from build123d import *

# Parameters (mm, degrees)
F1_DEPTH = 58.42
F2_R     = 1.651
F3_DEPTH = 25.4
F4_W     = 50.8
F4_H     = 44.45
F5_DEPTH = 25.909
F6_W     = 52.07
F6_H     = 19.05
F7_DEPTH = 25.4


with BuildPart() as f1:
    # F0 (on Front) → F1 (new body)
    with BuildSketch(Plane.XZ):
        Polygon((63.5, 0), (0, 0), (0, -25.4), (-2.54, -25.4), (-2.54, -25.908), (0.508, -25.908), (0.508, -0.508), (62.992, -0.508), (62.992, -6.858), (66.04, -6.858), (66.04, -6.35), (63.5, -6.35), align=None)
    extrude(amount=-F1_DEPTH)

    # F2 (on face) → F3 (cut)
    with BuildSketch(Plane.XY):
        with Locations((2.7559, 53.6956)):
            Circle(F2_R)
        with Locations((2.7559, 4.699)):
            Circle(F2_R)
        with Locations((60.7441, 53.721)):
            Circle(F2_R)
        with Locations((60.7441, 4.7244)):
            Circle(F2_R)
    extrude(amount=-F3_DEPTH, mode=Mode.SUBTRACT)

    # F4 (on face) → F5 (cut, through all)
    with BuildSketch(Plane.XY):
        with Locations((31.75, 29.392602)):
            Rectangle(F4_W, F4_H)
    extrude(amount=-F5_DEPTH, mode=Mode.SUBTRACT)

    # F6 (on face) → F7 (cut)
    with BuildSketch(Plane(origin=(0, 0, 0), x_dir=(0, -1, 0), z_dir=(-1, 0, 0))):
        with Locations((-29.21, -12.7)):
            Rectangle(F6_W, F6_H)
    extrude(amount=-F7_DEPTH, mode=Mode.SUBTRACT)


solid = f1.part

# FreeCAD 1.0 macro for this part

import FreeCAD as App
import Part
import Sketcher
from FreeCAD import Vector
Q = App.Units.Quantity


def add_polygon(sketch, points):
    """Adds a closed chain of lines whose ends are joined by coincident constraints."""
    first, n = sketch.GeometryCount, len(points)
    for a, b in zip(points, points[1:] + points[:1]):
        sketch.addGeometry(Part.LineSegment(App.Vector(*a, 0), App.Vector(*b, 0)), False)
    for i in range(n):
        sketch.addConstraint(Sketcher.Constraint("Coincident", first + i, 2, first + (i + 1) % n, 1))

doc = App.newDocument("Part")
params = doc.addObject("Spreadsheet::Sheet", "Params")
for row, (alias, value) in enumerate([
    ("sketch1_height", "1 in"),
    ("sketch1_width", "2.5 in"),
    ("sketch1_width2", "0.1 in"),
    ("sketch1_width3", "0.12 in"),
    ("sketch1_height2", "0.02 in"),
    ("pad1_length", "2.3 in"),
    ("sketch2_diameter", "0.13 in"),
    ("pocket1_length", "1 in"),
    ("sketch3_width", "2 in"),
    ("sketch3_height", "1.75 in"),
    ("sketch4_width", "2.05 in"),
    ("sketch4_height", "0.75 in"),
    ("pocket3_length", "1 in"),
], start=1):
    params.set(f"A{row}", alias)
    params.set(f"B{row}", "=" + value)
    params.setAlias(f"B{row}", alias)

body = doc.addObject("PartDesign::Body", "Body")

sketch1 = body.newObject("Sketcher::SketchObject", "Sketch")
sketch1.AttachmentSupport = (doc.getObject("XZ_Plane"), [""])
sketch1.MapMode = "FlatFace"
add_polygon(sketch1, [(63.5, 0), (0, 0), (0, -25.4), (-2.5, -25.4), (-2.5, -25.9), (0.5, -25.9), (0.5, -0.5), (63, -0.5), (63, -6.9), (66, -6.9), (66, -6.3), (63.5, -6.3)])
sketch1.addConstraint(Sketcher.Constraint("Horizontal", 0))
sketch1.addConstraint(Sketcher.Constraint("Vertical", 1))
sketch1.addConstraint(Sketcher.Constraint("Horizontal", 2))
sketch1.addConstraint(Sketcher.Constraint("Vertical", 3))
sketch1.addConstraint(Sketcher.Constraint("Horizontal", 4))
sketch1.addConstraint(Sketcher.Constraint("Vertical", 5))
sketch1.addConstraint(Sketcher.Constraint("Horizontal", 6))
sketch1.addConstraint(Sketcher.Constraint("Vertical", 7))
sketch1.addConstraint(Sketcher.Constraint("Horizontal", 8))
sketch1.addConstraint(Sketcher.Constraint("Vertical", 9))
sketch1.addConstraint(Sketcher.Constraint("Horizontal", 10))
sketch1.addConstraint(Sketcher.Constraint("Vertical", 11))
sketch1.addConstraint(Sketcher.Constraint("Coincident", 0, 2, -1, 1))
sketch1.addConstraint(Sketcher.Constraint("Equal", 4, 8))
sketch1.addConstraint(Sketcher.Constraint("Equal", 2, 10))
sketch1.addConstraint(Sketcher.Constraint("Equal", 1, 5))
sketch1.addConstraint(Sketcher.Constraint("Equal", 3, 9))
sketch1.addConstraint(Sketcher.Constraint("DistanceY", 1, 2, 1, 1, Q("1 in")))
sketch1.addConstraint(Sketcher.Constraint("DistanceX", 0, 2, 0, 1, Q("2.5 in")))
sketch1.addConstraint(Sketcher.Constraint("DistanceX", 2, 2, 2, 1, Q("0.1 in")))
sketch1.addConstraint(Sketcher.Constraint("DistanceX", 4, 1, 4, 2, Q("0.12 in")))
sketch1.addConstraint(Sketcher.Constraint("DistanceY", 3, 2, 3, 1, Q("0.02 in")))
sketch1.addConstraint(Sketcher.Constraint("DistanceY", 7, 2, 7, 1, Q("0.25 in")))
sketch1.setExpression("Constraints[29]", "Params.sketch1_height")
sketch1.setExpression("Constraints[30]", "Params.sketch1_width")
sketch1.setExpression("Constraints[31]", "Params.sketch1_width2")
sketch1.setExpression("Constraints[32]", "Params.sketch1_width3")
sketch1.setExpression("Constraints[33]", "Params.sketch1_height2")
pad1 = body.newObject("PartDesign::Pad", "Pad")
pad1.Profile = sketch1
pad1.setExpression("Length", "Params.pad1_length")
pad1.Reversed = True

sketch2 = body.newObject("Sketcher::SketchObject", "Sketch001")
sketch2.AttachmentSupport = (doc.getObject("XY_Plane"), [""])
sketch2.MapMode = "FlatFace"
sketch2.addGeometry(Part.Circle(Vector(2.8, 53.7, 0), Vector(0, 0, 1), 1.7), False)
sketch2.addGeometry(Part.Circle(Vector(2.8, 4.7, 0), Vector(0, 0, 1), 1.7), False)
sketch2.addGeometry(Part.Circle(Vector(60.7, 53.7, 0), Vector(0, 0, 1), 1.7), False)
sketch2.addGeometry(Part.Circle(Vector(60.7, 4.7, 0), Vector(0, 0, 1), 1.7), False)
sketch2.addConstraint(Sketcher.Constraint("Equal", 0, 1))
sketch2.addConstraint(Sketcher.Constraint("Equal", 1, 2))
sketch2.addConstraint(Sketcher.Constraint("Equal", 2, 3))
sketch2.addConstraint(Sketcher.Constraint("Vertical", 0, 3, 1, 3))
sketch2.addConstraint(Sketcher.Constraint("Vertical", 2, 3, 3, 3))
sketch2.addConstraint(Sketcher.Constraint("Diameter", 0, Q("0.13 in")))
sketch2.addConstraint(Sketcher.Constraint("DistanceY", 1, 3, 2, 3, Q("1.93 in")))
sketch2.addConstraint(Sketcher.Constraint("DistanceY", -1, 1, 0, 3, Q("2.114 in")))
sketch2.addConstraint(Sketcher.Constraint("DistanceY", -1, 1, 1, 3, Q("0.185 in")))
sketch2.addConstraint(Sketcher.Constraint("DistanceY", -1, 1, 3, 3, Q("0.186 in")))
sketch2.addConstraint(Sketcher.Constraint("DistanceX", 0, 3, 2, 3, Q("2.283 in")))
sketch2.addConstraint(Sketcher.Constraint("DistanceX", -1, 1, 0, 3, Q("0.1085 in")))
sketch2.setExpression("Constraints[5]", "Params.sketch2_diameter")
pocket1 = body.newObject("PartDesign::Pocket", "Pocket")
pocket1.Profile = sketch2
pocket1.setExpression("Length", "Params.pocket1_length")

sketch3 = body.newObject("Sketcher::SketchObject", "Sketch002")
sketch3.AttachmentSupport = (doc.getObject("XY_Plane"), [""])
sketch3.MapMode = "FlatFace"
add_polygon(sketch3, [(6, 52), (6, 7), (57, 7), (57, 52)])
sketch3.addConstraint(Sketcher.Constraint("Vertical", 0))
sketch3.addConstraint(Sketcher.Constraint("Horizontal", 1))
sketch3.addConstraint(Sketcher.Constraint("Vertical", 2))
sketch3.addConstraint(Sketcher.Constraint("Horizontal", 3))
sketch3.addConstraint(Sketcher.Constraint("DistanceX", 1, 1, 1, 2, Q("2 in")))
sketch3.addConstraint(Sketcher.Constraint("DistanceY", 0, 2, 0, 1, Q("1.75 in")))
sketch3.addConstraint(Sketcher.Constraint("DistanceX", -1, 1, 0, 2, Q("0.25 in")))
sketch3.addConstraint(Sketcher.Constraint("DistanceY", -1, 1, 0, 2, 7.167602))
sketch3.setExpression("Constraints[8]", "Params.sketch3_width")
sketch3.setExpression("Constraints[9]", "Params.sketch3_height")
pocket2 = body.newObject("PartDesign::Pocket", "Pocket001")
pocket2.Profile = sketch3
pocket2.Type = "ThroughAll"

sketch4 = body.newObject("Sketcher::SketchObject", "Sketch003")
sketch4.AttachmentSupport = (doc.getObject("YZ_Plane"), [""])
sketch4.MapMode = "FlatFace"
add_polygon(sketch4, [(55, -3), (55, -22), (3, -22), (3, -3)])
sketch4.addConstraint(Sketcher.Constraint("Vertical", 0))
sketch4.addConstraint(Sketcher.Constraint("Horizontal", 1))
sketch4.addConstraint(Sketcher.Constraint("Vertical", 2))
sketch4.addConstraint(Sketcher.Constraint("Horizontal", 3))
sketch4.addConstraint(Sketcher.Constraint("DistanceX", 1, 2, 1, 1, Q("2.05 in")))
sketch4.addConstraint(Sketcher.Constraint("DistanceY", 0, 2, 0, 1, Q("0.75 in")))
sketch4.addConstraint(Sketcher.Constraint("DistanceX", -1, 1, 0, 2, Q("2.175 in")))
sketch4.addConstraint(Sketcher.Constraint("DistanceY", 0, 2, -1, 1, Q("0.875 in")))
sketch4.setExpression("Constraints[8]", "Params.sketch4_width")
sketch4.setExpression("Constraints[9]", "Params.sketch4_height")
pocket3 = body.newObject("PartDesign::Pocket", "Pocket002")
pocket3.Profile = sketch4
pocket3.setExpression("Length", "Params.pocket3_length")
pocket3.Reversed = True

doc.recompute()
